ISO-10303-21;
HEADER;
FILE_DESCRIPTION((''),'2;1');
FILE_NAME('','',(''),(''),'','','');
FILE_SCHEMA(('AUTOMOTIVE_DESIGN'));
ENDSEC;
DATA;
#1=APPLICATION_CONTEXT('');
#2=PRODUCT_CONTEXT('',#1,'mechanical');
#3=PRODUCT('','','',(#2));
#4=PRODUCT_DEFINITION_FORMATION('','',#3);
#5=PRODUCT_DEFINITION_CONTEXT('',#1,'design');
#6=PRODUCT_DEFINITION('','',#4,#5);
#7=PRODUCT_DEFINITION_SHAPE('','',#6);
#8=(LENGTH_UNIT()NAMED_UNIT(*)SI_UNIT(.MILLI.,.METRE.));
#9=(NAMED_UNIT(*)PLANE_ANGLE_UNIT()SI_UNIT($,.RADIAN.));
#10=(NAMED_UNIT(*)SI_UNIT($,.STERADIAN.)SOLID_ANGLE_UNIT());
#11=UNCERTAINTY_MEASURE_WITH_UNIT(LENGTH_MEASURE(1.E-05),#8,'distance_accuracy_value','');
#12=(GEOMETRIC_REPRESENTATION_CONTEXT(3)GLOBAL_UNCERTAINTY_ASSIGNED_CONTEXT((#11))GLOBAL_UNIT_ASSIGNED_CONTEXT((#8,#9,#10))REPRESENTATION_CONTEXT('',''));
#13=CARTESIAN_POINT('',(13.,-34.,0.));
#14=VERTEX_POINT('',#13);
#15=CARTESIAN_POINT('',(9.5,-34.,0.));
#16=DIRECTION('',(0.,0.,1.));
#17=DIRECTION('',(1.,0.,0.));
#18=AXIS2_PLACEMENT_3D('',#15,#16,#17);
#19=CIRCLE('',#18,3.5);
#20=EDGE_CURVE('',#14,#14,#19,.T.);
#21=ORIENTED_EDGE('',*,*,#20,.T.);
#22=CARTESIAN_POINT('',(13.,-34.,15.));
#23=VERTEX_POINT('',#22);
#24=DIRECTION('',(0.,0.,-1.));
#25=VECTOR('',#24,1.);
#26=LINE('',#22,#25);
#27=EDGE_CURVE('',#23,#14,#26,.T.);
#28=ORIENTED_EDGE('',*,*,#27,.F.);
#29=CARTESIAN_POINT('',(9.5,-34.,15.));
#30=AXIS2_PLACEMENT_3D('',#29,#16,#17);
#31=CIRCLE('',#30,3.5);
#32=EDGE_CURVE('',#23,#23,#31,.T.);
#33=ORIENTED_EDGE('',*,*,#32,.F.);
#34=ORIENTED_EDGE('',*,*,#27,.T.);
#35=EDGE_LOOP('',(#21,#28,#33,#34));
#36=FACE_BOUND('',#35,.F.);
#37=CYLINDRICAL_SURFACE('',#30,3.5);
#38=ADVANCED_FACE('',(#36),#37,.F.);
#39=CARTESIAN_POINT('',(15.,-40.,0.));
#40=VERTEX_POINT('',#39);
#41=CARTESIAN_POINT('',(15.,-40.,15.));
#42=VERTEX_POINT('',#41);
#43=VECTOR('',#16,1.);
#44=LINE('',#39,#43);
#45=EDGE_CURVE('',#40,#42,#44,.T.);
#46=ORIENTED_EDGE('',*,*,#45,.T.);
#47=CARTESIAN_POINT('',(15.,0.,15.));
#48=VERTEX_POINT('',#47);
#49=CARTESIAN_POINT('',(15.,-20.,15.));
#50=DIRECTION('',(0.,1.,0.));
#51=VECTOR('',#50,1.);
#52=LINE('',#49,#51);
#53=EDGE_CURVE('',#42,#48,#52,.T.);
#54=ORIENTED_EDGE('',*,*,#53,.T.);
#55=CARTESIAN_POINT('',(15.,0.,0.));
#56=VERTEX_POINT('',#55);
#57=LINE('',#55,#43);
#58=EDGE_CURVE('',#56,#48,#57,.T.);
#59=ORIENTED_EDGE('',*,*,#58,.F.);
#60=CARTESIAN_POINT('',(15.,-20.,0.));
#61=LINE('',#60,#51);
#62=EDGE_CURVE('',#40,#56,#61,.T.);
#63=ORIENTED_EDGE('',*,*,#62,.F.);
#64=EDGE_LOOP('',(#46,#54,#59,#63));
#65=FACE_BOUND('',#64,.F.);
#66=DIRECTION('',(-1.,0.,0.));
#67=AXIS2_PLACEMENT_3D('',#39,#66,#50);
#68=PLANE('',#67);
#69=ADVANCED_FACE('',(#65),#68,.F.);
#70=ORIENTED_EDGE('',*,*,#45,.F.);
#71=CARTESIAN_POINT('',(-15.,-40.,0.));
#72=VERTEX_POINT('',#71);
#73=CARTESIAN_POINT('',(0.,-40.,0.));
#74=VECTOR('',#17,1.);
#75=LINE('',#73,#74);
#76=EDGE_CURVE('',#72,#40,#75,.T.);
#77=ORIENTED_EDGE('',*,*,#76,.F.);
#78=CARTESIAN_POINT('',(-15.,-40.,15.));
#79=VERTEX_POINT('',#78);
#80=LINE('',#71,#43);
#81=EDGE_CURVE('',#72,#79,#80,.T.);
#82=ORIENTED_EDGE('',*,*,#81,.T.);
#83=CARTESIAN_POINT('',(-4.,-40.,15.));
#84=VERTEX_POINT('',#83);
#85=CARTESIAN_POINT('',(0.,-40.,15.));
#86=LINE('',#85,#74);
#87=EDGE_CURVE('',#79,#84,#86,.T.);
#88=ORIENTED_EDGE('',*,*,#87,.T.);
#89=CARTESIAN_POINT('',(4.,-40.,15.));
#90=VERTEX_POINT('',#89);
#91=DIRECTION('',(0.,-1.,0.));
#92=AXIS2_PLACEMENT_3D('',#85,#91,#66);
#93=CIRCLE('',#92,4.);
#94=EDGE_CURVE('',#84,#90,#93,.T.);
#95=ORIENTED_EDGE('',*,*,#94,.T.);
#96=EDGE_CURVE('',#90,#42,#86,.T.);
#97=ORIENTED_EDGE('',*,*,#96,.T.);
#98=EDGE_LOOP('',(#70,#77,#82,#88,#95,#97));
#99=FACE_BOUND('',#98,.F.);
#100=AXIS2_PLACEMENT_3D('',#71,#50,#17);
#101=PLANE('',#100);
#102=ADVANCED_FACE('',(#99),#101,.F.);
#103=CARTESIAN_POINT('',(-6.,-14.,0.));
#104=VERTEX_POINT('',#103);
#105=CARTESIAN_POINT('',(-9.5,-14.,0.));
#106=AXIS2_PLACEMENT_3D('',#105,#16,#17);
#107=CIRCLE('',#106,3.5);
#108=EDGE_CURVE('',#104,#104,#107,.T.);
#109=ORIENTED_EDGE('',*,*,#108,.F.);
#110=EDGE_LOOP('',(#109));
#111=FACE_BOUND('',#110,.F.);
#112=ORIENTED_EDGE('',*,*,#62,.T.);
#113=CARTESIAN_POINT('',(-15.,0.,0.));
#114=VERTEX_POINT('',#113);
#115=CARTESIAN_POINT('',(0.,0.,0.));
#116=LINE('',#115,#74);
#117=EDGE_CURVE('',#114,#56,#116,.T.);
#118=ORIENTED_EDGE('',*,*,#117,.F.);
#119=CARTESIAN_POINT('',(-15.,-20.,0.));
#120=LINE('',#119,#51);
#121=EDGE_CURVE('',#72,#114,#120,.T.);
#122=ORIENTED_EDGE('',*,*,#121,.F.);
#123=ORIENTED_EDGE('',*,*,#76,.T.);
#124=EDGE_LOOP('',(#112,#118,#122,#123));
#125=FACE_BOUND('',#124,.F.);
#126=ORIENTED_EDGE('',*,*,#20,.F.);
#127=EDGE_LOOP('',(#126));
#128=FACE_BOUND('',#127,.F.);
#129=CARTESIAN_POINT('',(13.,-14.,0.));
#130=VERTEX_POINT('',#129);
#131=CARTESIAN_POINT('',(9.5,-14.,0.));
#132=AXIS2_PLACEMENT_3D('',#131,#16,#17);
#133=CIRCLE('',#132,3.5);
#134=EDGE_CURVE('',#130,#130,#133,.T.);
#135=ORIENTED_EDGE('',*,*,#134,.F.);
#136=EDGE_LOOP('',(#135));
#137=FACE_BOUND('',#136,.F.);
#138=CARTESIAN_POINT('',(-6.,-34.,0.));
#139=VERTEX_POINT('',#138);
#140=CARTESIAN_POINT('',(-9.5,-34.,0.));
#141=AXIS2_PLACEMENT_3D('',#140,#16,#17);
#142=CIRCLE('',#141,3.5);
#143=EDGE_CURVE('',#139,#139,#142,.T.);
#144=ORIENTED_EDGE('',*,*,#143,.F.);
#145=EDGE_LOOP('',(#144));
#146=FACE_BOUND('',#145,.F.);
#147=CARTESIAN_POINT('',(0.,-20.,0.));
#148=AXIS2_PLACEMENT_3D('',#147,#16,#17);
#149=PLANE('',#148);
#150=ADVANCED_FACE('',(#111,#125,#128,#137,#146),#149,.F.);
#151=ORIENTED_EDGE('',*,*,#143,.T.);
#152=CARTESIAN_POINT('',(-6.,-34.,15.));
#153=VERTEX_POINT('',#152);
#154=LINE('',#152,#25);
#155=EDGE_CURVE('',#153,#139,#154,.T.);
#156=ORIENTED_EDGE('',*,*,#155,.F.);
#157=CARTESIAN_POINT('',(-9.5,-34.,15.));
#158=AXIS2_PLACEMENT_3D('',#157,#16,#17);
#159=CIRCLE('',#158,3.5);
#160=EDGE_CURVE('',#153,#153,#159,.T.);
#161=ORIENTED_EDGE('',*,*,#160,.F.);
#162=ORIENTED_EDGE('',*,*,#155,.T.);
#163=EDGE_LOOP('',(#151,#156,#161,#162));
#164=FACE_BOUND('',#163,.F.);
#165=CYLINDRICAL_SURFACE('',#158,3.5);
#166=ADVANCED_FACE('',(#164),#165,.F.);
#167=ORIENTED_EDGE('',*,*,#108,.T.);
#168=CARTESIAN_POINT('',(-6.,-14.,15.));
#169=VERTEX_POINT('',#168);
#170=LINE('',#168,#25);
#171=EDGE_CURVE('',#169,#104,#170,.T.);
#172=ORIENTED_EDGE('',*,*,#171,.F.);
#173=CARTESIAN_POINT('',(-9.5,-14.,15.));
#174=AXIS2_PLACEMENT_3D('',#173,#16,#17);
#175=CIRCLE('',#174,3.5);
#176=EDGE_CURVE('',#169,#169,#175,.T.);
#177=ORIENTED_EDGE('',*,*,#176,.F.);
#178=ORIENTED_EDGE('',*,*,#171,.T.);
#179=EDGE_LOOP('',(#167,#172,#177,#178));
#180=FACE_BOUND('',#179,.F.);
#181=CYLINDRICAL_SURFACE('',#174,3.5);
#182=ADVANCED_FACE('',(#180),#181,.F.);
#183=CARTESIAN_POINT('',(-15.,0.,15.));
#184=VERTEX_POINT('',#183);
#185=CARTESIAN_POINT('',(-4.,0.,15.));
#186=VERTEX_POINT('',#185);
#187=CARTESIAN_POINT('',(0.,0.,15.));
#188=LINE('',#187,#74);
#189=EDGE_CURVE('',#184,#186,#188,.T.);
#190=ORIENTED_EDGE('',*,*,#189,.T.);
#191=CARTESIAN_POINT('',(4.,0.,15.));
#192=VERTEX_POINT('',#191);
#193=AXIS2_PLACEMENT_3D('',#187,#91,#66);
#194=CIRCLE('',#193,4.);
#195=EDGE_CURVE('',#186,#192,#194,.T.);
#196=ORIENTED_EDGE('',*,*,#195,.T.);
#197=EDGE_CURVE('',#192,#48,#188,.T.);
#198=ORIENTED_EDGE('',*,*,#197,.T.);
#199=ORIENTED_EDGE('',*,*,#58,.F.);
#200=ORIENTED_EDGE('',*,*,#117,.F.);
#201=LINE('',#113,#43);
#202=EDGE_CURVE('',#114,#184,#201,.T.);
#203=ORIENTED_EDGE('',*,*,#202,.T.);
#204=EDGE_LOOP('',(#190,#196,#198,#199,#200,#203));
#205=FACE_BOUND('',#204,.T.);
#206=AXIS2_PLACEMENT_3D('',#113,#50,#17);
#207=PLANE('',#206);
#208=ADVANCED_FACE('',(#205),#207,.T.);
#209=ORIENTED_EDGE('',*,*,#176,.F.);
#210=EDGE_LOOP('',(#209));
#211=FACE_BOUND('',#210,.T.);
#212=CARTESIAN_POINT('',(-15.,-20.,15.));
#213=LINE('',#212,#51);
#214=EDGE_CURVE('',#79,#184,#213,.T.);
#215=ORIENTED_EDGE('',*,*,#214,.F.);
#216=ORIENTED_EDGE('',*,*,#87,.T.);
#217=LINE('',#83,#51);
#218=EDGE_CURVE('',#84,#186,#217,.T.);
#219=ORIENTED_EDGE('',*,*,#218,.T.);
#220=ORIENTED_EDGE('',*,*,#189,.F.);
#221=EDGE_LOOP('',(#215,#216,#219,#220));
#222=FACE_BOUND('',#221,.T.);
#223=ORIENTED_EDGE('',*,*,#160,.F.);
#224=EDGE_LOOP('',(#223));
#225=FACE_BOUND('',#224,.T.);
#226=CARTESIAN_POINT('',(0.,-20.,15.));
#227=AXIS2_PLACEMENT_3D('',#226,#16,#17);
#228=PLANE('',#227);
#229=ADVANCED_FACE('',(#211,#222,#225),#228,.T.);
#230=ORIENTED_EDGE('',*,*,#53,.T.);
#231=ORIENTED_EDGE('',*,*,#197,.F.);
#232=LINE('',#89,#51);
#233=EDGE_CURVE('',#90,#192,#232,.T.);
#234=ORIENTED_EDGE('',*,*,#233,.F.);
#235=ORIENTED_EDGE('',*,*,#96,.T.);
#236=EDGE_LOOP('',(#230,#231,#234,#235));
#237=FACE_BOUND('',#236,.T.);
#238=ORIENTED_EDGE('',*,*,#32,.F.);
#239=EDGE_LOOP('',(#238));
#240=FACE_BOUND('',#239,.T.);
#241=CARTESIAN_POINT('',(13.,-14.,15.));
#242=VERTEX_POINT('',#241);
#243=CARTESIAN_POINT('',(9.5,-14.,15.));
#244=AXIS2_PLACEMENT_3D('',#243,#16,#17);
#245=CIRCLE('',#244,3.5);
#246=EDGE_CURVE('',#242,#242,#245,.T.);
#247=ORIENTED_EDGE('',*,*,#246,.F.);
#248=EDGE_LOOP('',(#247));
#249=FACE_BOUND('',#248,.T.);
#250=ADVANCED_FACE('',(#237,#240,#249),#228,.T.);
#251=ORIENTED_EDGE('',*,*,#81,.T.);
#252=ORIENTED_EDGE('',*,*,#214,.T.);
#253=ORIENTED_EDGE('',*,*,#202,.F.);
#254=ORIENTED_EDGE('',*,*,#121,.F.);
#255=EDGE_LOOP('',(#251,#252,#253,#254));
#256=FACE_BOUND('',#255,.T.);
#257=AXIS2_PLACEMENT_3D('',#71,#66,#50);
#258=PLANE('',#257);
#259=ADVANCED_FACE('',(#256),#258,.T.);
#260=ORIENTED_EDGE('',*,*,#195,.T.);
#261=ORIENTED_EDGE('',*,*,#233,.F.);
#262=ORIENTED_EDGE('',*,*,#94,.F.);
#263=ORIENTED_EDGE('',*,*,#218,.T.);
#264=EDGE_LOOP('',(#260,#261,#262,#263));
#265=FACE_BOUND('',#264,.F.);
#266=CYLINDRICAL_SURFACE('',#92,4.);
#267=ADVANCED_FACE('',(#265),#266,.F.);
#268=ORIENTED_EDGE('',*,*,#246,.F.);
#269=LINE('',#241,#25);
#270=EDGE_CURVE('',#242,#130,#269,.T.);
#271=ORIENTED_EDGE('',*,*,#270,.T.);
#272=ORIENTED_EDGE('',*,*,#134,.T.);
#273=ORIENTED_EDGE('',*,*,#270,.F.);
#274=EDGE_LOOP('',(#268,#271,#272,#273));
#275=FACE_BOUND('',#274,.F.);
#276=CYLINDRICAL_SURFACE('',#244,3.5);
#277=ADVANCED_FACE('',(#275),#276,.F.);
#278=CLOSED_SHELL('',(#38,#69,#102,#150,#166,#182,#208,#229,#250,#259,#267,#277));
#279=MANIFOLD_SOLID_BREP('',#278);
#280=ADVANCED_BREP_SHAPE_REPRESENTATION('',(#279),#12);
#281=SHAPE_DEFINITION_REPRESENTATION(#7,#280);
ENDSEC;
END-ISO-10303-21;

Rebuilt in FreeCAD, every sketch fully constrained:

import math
import FreeCAD as App
import Part
import Sketcher
Q = App.Units.Quantity

doc = App.newDocument("Part")
params = doc.addObject("Spreadsheet::Sheet", "Params")
for row, (alias, value) in enumerate([
    ("sketch1_width", "30 mm"),
    ("sketch1_height", "40 mm"),
    ("pad1_length", "15 mm"),
    ("sketch2_radius", "4 mm"),
    ("sketch3_diameter", "7 mm"),
], start=1):
    params.set(f"A{row}", alias)
    params.set(f"B{row}", "=" + value)
    params.setAlias(f"B{row}", alias)

body = doc.addObject("PartDesign::Body", "Body")

sketch1 = body.newObject("Sketcher::SketchObject", "Sketch")
sketch1.AttachmentSupport = (doc.getObject("XY_Plane"), [""])
sketch1.MapMode = "FlatFace"
sketch1.addGeometry(Part.LineSegment(App.Vector(-15, 0, 0), App.Vector(-15, -40, 0)), False)
sketch1.addGeometry(Part.LineSegment(App.Vector(-15, -40, 0), App.Vector(15, -40, 0)), False)
sketch1.addGeometry(Part.LineSegment(App.Vector(15, -40, 0), App.Vector(15, 0, 0)), False)
sketch1.addGeometry(Part.LineSegment(App.Vector(15, 0, 0), App.Vector(-15, 0, 0)), False)
sketch1.addConstraint(Sketcher.Constraint("Coincident", 0, 2, 1, 1))
sketch1.addConstraint(Sketcher.Constraint("Coincident", 1, 2, 2, 1))
sketch1.addConstraint(Sketcher.Constraint("Coincident", 2, 2, 3, 1))
sketch1.addConstraint(Sketcher.Constraint("Coincident", 3, 2, 0, 1))
sketch1.addConstraint(Sketcher.Constraint("Vertical", 0))
sketch1.addConstraint(Sketcher.Constraint("Horizontal", 1))
sketch1.addConstraint(Sketcher.Constraint("Vertical", 2))
sketch1.addConstraint(Sketcher.Constraint("Horizontal", 3))
sketch1.addConstraint(Sketcher.Constraint("Symmetric", 2, 2, 3, 2, -1, 1))
sketch1.addConstraint(Sketcher.Constraint("DistanceX", 1, 1, 1, 2, Q("30 mm")))
sketch1.addConstraint(Sketcher.Constraint("DistanceY", 0, 2, 0, 1, Q("40 mm")))
sketch1.setExpression("Constraints[9]", "Params.sketch1_width")
sketch1.setExpression("Constraints[10]", "Params.sketch1_height")
pad1 = body.newObject("PartDesign::Pad", "Pad")
pad1.Profile = sketch1
pad1.setExpression("Length", "Params.pad1_length")

sketch2 = body.newObject("Sketcher::SketchObject", "Sketch001")
sketch2.AttachmentSupport = (doc.getObject("XZ_Plane"), [""])
sketch2.MapMode = "FlatFace"
sketch2.AttachmentOffset = App.Placement(App.Vector(0, 0, 40), App.Rotation())
sketch2.addGeometry(Part.ArcOfCircle(Part.Circle(App.Vector(0, 15, 0), App.Vector(0, 0, 1), 4), math.radians(180), math.radians(360)), False)
sketch2.addGeometry(Part.LineSegment(App.Vector(4, 15, 0), App.Vector(-4, 15, 0)), False)
sketch2.addConstraint(Sketcher.Constraint("Coincident", 0, 1, 1, 2))
sketch2.addConstraint(Sketcher.Constraint("Coincident", 1, 1, 0, 2))
sketch2.addConstraint(Sketcher.Constraint("Horizontal", 1))
sketch2.addConstraint(Sketcher.Constraint("PointOnObject", 0, 3, -2))
sketch2.addConstraint(Sketcher.Constraint("Radius", 0, Q("4 mm")))
sketch2.addConstraint(Sketcher.Constraint("DistanceY", -1, 1, 0, 3, Q("15 mm")))
sketch2.addConstraint(Sketcher.Constraint("DistanceY", -1, 1, 0, 1, Q("15 mm")))
sketch2.setExpression("Constraints[4]", "Params.sketch2_radius")
pocket1 = body.newObject("PartDesign::Pocket", "Pocket")
pocket1.Profile = sketch2
pocket1.Type = "ThroughAll"

sketch3 = body.newObject("Sketcher::SketchObject", "Sketch002")
sketch3.AttachmentSupport = (doc.getObject("XY_Plane"), [""])
sketch3.MapMode = "FlatFace"
sketch3.AttachmentOffset = App.Placement(App.Vector(0, 0, 15), App.Rotation())
sketch3.addGeometry(Part.Circle(App.Vector(-9.5, -34, 0), App.Vector(0, 0, 1), 3.5), False)
sketch3.addGeometry(Part.Circle(App.Vector(-9.5, -14, 0), App.Vector(0, 0, 1), 3.5), False)
sketch3.addGeometry(Part.Circle(App.Vector(9.5, -14, 0), App.Vector(0, 0, 1), 3.5), False)
sketch3.addGeometry(Part.Circle(App.Vector(9.5, -34, 0), App.Vector(0, 0, 1), 3.5), False)
sketch3.addConstraint(Sketcher.Constraint("Equal", 0, 1))
sketch3.addConstraint(Sketcher.Constraint("Equal", 1, 2))
sketch3.addConstraint(Sketcher.Constraint("Equal", 2, 3))
sketch3.addConstraint(Sketcher.Constraint("Symmetric", 1, 3, 2, 3, -2))
sketch3.addConstraint(Sketcher.Constraint("Symmetric", 0, 3, 3, 3, -2))
sketch3.addConstraint(Sketcher.Constraint("Vertical", 0, 3, 1, 3))
sketch3.addConstraint(Sketcher.Constraint("Diameter", 0, Q("7 mm")))
sketch3.addConstraint(Sketcher.Constraint("DistanceY", 0, 3, -1, 1, Q("34 mm")))
sketch3.addConstraint(Sketcher.Constraint("DistanceY", 1, 3, -1, 1, Q("14 mm")))
sketch3.addConstraint(Sketcher.Constraint("DistanceX", 1, 3, 2, 3, Q("19 mm")))
sketch3.setExpression("Constraints[6]", "Params.sketch3_diameter")
pocket2 = body.newObject("PartDesign::Pocket", "Pocket001")
pocket2.Profile = sketch3
pocket2.Type = "ThroughAll"

doc.recompute()
